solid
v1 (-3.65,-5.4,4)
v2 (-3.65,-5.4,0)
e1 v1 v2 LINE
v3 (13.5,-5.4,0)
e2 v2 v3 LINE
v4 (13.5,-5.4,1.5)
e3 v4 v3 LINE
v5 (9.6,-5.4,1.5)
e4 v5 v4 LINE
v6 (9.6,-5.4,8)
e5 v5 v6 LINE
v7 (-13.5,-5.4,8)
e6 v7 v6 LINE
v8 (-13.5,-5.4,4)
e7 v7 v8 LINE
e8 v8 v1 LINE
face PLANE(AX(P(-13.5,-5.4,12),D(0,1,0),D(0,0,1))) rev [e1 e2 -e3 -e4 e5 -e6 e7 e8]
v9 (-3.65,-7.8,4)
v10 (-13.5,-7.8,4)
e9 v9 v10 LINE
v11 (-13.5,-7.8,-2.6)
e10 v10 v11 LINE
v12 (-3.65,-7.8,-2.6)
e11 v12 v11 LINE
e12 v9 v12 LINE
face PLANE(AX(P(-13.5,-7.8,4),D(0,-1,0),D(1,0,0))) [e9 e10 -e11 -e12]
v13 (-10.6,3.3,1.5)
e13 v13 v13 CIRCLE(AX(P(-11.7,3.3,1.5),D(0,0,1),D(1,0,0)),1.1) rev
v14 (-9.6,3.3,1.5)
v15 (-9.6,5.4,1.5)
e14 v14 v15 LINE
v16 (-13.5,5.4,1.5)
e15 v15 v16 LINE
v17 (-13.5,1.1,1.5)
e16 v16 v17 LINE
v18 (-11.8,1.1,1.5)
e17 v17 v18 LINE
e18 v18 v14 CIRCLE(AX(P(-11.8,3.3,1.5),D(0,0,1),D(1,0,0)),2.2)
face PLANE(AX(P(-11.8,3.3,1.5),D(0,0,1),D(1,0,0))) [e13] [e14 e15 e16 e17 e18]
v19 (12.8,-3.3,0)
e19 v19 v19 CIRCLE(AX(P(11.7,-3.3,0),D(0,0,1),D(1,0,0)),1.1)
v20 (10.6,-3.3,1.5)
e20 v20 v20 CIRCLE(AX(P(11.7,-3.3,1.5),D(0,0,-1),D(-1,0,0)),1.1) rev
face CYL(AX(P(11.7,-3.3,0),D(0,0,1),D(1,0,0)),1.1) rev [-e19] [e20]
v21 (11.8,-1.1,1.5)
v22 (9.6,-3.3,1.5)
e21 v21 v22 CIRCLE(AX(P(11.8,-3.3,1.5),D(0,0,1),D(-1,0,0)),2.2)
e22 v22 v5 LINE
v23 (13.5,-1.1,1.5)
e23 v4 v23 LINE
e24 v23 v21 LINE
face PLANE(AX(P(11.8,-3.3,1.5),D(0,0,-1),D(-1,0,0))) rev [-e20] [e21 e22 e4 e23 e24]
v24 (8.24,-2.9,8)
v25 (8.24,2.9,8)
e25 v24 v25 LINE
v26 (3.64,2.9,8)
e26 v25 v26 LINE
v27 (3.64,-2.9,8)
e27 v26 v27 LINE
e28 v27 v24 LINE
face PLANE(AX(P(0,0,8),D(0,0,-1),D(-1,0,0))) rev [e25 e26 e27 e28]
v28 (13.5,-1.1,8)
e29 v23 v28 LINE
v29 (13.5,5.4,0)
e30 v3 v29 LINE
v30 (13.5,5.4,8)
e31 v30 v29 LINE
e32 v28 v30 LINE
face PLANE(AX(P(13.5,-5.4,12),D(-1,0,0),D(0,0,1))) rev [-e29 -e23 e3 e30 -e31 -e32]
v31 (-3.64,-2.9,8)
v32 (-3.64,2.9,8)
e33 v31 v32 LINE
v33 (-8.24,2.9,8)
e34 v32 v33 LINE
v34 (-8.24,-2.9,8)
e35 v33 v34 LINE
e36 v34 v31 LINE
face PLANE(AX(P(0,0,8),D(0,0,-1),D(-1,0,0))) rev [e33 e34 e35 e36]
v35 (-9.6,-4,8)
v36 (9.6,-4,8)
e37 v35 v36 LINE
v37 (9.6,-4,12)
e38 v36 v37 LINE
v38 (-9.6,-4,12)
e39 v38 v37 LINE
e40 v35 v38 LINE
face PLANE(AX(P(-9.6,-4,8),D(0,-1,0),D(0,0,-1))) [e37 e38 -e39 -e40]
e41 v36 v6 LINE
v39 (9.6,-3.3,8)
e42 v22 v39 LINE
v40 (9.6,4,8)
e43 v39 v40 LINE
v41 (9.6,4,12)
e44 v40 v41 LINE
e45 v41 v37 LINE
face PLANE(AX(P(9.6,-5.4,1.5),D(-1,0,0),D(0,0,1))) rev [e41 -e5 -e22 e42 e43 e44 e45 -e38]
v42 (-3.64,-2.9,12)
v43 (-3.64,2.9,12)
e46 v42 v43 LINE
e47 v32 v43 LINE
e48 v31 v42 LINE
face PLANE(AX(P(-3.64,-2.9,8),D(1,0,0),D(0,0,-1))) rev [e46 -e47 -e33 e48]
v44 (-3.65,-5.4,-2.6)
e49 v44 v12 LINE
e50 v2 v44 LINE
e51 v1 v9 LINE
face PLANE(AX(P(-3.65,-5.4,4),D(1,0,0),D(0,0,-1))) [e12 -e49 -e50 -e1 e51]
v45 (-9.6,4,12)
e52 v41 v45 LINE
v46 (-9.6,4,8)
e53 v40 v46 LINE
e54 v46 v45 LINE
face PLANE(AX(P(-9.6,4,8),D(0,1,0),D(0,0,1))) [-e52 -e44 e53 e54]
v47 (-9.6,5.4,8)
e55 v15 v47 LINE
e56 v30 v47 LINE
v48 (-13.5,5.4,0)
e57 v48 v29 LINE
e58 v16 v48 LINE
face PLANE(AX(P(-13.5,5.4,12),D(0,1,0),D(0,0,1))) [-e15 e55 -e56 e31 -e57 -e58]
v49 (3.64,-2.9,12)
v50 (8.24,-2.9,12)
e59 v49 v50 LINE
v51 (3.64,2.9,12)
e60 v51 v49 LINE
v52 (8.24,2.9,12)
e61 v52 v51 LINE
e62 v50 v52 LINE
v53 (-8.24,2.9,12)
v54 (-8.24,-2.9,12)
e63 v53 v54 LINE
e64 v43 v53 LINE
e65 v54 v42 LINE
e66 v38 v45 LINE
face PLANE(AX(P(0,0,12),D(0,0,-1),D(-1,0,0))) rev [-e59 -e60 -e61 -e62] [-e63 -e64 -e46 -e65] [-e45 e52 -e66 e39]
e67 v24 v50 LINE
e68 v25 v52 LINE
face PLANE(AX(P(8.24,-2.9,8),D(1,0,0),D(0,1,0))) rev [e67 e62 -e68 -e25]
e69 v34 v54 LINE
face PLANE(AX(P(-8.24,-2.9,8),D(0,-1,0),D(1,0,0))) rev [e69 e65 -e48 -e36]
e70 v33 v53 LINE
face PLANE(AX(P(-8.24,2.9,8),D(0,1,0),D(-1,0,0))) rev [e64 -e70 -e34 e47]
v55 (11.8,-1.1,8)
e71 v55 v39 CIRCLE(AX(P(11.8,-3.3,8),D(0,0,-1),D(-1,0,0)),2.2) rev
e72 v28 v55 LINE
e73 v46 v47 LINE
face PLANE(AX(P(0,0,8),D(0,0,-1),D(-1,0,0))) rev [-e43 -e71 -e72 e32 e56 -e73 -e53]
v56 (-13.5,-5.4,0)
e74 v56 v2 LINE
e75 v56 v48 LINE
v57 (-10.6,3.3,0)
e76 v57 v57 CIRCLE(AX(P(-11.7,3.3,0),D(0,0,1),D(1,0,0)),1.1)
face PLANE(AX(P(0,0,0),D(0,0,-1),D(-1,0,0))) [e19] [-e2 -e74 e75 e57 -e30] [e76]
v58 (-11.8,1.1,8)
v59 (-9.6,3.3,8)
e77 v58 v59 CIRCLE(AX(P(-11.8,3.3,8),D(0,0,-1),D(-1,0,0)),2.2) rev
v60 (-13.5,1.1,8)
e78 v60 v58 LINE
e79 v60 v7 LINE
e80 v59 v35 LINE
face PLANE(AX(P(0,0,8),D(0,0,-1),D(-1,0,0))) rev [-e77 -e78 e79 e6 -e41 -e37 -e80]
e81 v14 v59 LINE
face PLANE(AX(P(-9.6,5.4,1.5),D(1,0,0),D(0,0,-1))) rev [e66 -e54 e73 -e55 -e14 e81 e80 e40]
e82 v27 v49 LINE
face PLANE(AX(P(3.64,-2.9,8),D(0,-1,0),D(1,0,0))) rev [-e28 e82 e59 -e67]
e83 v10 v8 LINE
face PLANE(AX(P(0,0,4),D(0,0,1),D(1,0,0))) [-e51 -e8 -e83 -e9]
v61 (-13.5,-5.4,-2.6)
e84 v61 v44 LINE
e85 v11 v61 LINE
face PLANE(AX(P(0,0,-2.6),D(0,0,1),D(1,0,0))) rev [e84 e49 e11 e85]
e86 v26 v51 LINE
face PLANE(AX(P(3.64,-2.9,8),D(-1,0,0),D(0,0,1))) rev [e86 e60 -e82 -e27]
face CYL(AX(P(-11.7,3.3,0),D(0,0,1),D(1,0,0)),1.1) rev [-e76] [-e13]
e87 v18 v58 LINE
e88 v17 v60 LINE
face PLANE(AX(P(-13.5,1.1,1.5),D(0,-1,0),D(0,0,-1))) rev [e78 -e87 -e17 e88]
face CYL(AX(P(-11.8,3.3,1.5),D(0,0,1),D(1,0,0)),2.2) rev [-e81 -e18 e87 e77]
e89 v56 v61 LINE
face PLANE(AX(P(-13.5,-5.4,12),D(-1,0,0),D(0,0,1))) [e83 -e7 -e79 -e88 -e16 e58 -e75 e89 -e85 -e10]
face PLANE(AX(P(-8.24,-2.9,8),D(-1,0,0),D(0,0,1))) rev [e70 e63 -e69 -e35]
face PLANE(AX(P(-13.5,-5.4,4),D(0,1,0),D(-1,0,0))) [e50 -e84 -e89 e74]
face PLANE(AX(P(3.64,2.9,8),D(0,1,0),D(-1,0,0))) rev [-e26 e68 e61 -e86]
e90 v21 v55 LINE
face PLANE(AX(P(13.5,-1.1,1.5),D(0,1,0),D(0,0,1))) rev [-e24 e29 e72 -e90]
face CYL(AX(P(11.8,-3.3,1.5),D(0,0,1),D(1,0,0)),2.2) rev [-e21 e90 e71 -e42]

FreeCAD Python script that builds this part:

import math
import FreeCAD as App
import Part
import Sketcher


def add_polygon(sketch, points):
    """Adds a closed chain of lines whose ends are joined by coincident constraints."""
    first, n = sketch.GeometryCount, len(points)
    for a, b in zip(points, points[1:] + points[:1]):
        sketch.addGeometry(Part.LineSegment(App.Vector(*a, 0), App.Vector(*b, 0)), False)
    for i in range(n):
        sketch.addConstraint(Sketcher.Constraint("Coincident", first + i, 2, first + (i + 1) % n, 1))

doc = App.newDocument("Part")
body = doc.addObject("PartDesign::Body", "Body")

# Sketch on XY plane
sketch1 = body.newObject("Sketcher::SketchObject", "Sketch")
sketch1.AttachmentSupport = (doc.getObject("XY_Plane"), [""])
sketch1.MapMode = "FlatFace"
add_polygon(sketch1, [(-13.5, 5.4), (-13.5, -5.4), (13.5, -5.4), (13.5, 5.4)])  # lines 0-3
sketch1.addConstraint([
    Sketcher.Constraint("Vertical", 0),
    Sketcher.Constraint("Horizontal", 1),
    Sketcher.Constraint("Vertical", 2),
    Sketcher.Constraint("Horizontal", 3),
    Sketcher.Constraint("Symmetric", 0, 2, 2, 2, -1, 1),
    Sketcher.Constraint("DistanceX", 1, 1, 1, 2, 27.0),
    Sketcher.Constraint("DistanceY", 0, 2, 0, 1, 10.8),
])
pad1 = body.newObject("PartDesign::Pad", "Pad")
pad1.Profile = sketch1
pad1.Length = 12

# Sketch on XY plane
sketch2 = body.newObject("Sketcher::SketchObject", "Sketch001")
sketch2.AttachmentSupport = (doc.getObject("XY_Plane"), [""])
sketch2.MapMode = "FlatFace"
sketch2.AttachmentOffset = App.Placement(App.Vector(0, 0, 12), App.Rotation())
sketch2.addGeometry([
    Part.Circle(App.Vector(-11.7, 3.3, 0), App.Vector(0, 0, 1), 1.1),
    Part.Circle(App.Vector(11.7, -3.3, 0), App.Vector(0, 0, 1), 1.1),
], False)
sketch2.addConstraint([
    Sketcher.Constraint("Equal", 0, 1),
    Sketcher.Constraint("Symmetric", 0, 3, 1, 3, -1, 1),
    Sketcher.Constraint("Diameter", 0, 2.2),
    Sketcher.Constraint("DistanceX", 0, 3, -1, 1, 11.7),
    Sketcher.Constraint("DistanceY", -1, 1, 0, 3, 3.3),
])
pocket1 = body.newObject("PartDesign::Pocket", "Pocket")
pocket1.Profile = sketch2
pocket1.Type = "ThroughAll"

# Sketch on XY plane
sketch3 = body.newObject("Sketcher::SketchObject", "Sketch002")
sketch3.AttachmentSupport = (doc.getObject("XY_Plane"), [""])
sketch3.MapMode = "FlatFace"
sketch3.AttachmentOffset = App.Placement(App.Vector(0, 0, 12), App.Rotation())
sketch3.addGeometry([
    Part.LineSegment(App.Vector(9.6, -3.3, 0), App.Vector(9.6, -5.4, 0)),  # 0
    Part.LineSegment(App.Vector(9.6, -5.4, 0), App.Vector(13.5, -5.4, 0)),  # 1
    Part.LineSegment(App.Vector(13.5, -5.4, 0), App.Vector(13.5, -1.1, 0)),  # 2
    Part.LineSegment(App.Vector(13.5, -1.1, 0), App.Vector(11.8, -1.1, 0)),  # 3
    Part.ArcOfCircle(Part.Circle(App.Vector(11.8, -3.3, 0), App.Vector(0, 0, 1), 2.2), math.radians(90), math.radians(180)),  # 4
    Part.LineSegment(App.Vector(-9.6, 3.3, 0), App.Vector(-9.6, 5.4, 0)),  # 5
    Part.LineSegment(App.Vector(-9.6, 5.4, 0), App.Vector(-13.5, 5.4, 0)),  # 6
    Part.LineSegment(App.Vector(-13.5, 5.4, 0), App.Vector(-13.5, 1.1, 0)),  # 7
    Part.LineSegment(App.Vector(-13.5, 1.1, 0), App.Vector(-11.8, 1.1, 0)),  # 8
    Part.ArcOfCircle(Part.Circle(App.Vector(-11.8, 3.3, 0), App.Vector(0, 0, 1), 2.2), math.radians(-90), math.radians(0)),  # 9
], False)
sketch3.addConstraint([
    Sketcher.Constraint("Coincident", 0, 2, 1, 1),
    Sketcher.Constraint("Coincident", 1, 2, 2, 1),
    Sketcher.Constraint("Coincident", 2, 2, 3, 1),
    Sketcher.Constraint("Tangent", 3, 2, 4, 1),
    Sketcher.Constraint("Tangent", 4, 2, 0, 1),
    Sketcher.Constraint("Coincident", 5, 2, 6, 1),
    Sketcher.Constraint("Coincident", 6, 2, 7, 1),
    Sketcher.Constraint("Coincident", 7, 2, 8, 1),
    Sketcher.Constraint("Tangent", 8, 2, 9, 1),
    Sketcher.Constraint("Tangent", 9, 2, 5, 1),
    Sketcher.Constraint("Vertical", 0),
    Sketcher.Constraint("Horizontal", 1),
    Sketcher.Constraint("Vertical", 2),
    Sketcher.Constraint("Horizontal", 3),
    Sketcher.Constraint("Vertical", 5),
    Sketcher.Constraint("Horizontal", 6),
    Sketcher.Constraint("Vertical", 7),
    Sketcher.Constraint("Horizontal", 8),
    Sketcher.Constraint("Equal", 4, 9),
    Sketcher.Constraint("Symmetric", 4, 3, 9, 3, -1, 1),
    Sketcher.Constraint("Symmetric", 1, 2, 6, 2, -1, 1),
    Sketcher.Constraint("Radius", 4, 2.2),
    Sketcher.Constraint("DistanceX", 1, 1, 1, 2, 3.9),
    Sketcher.Constraint("DistanceY", 0, 2, 0, 1, 2.1),
    Sketcher.Constraint("DistanceX", -1, 1, 4, 3, 11.8),
    Sketcher.Constraint("DistanceY", 4, 3, -1, 1, 3.3),
])
pocket2 = body.newObject("PartDesign::Pocket", "Pocket001")
pocket2.Profile = sketch3
pocket2.Length = 10.5

# Sketch on XY plane
sketch4 = body.newObject("Sketcher::SketchObject", "Sketch003")
sketch4.AttachmentSupport = (doc.getObject("XY_Plane"), [""])
sketch4.MapMode = "FlatFace"
sketch4.AttachmentOffset = App.Placement(App.Vector(0, 0, 12), App.Rotation())
add_polygon(sketch4, [(-13.5, 5.4), (-13.5, -5.4), (13.5, -5.4), (13.5, 5.4)])  # lines 0-3
add_polygon(sketch4, [(9.6, -4), (-9.6, -4), (-9.6, 4), (9.6, 4)])  # lines 4-7
sketch4.addConstraint([
    Sketcher.Constraint("Vertical", 0),
    Sketcher.Constraint("Horizontal", 1),
    Sketcher.Constraint("Vertical", 2),
    Sketcher.Constraint("Horizontal", 3),
    Sketcher.Constraint("Horizontal", 4),
    Sketcher.Constraint("Vertical", 5),
    Sketcher.Constraint("Horizontal", 6),
    Sketcher.Constraint("Vertical", 7),
    Sketcher.Constraint("Symmetric", 0, 2, 2, 2, -1, 1),
    Sketcher.Constraint("Symmetric", 4, 2, 6, 2, -1, 1),
    Sketcher.Constraint("DistanceX", 1, 1, 1, 2, 27.0),
    Sketcher.Constraint("DistanceY", 5, 1, 5, 2, 8.0),
    Sketcher.Constraint("DistanceX", 4, 2, 4, 1, 19.2),
    Sketcher.Constraint("DistanceY", 0, 2, 0, 1, 10.8),
])
pocket3 = body.newObject("PartDesign::Pocket", "Pocket002")
pocket3.Profile = sketch4
pocket3.Length = 4

# Sketch on XY plane
sketch5 = body.newObject("Sketcher::SketchObject", "Sketch004")
sketch5.AttachmentSupport = (doc.getObject("XY_Plane"), [""])
sketch5.MapMode = "FlatFace"
sketch5.AttachmentOffset = App.Placement(App.Vector(0, 0, 12), App.Rotation())
add_polygon(sketch5, [(-8.24, 2.9), (-8.24, -2.9), (-3.64, -2.9), (-3.64, 2.9)])  # lines 0-3
add_polygon(sketch5, [(3.64, 2.9), (3.64, -2.9), (8.24, -2.9), (8.24, 2.9)])  # lines 4-7
sketch5.addConstraint([
    Sketcher.Constraint("Vertical", 0),
    Sketcher.Constraint("Horizontal", 1),
    Sketcher.Constraint("Vertical", 2),
    Sketcher.Constraint("Horizontal", 3),
    Sketcher.Constraint("Vertical", 4),
    Sketcher.Constraint("Horizontal", 5),
    Sketcher.Constraint("Vertical", 6),
    Sketcher.Constraint("Horizontal", 7),
    Sketcher.Constraint("Symmetric", 2, 2, 4, 2, -1, 1),
    Sketcher.Constraint("Symmetric", 0, 2, 6, 2, -1, 1),
    Sketcher.Constraint("Horizontal", 1, 2, 4, 2),
    Sketcher.Constraint("DistanceX", 1, 1, 1, 2, 4.6),
    Sketcher.Constraint("DistanceY", 0, 2, 0, 1, 5.8),
    Sketcher.Constraint("DistanceX", 0, 2, -1, 1, 8.24),
])
pocket4 = body.newObject("PartDesign::Pocket", "Pocket003")
pocket4.Profile = sketch5
pocket4.Length = 4

# Sketch on XY plane
sketch6 = body.newObject("Sketcher::SketchObject", "Sketch005")
sketch6.AttachmentSupport = (doc.getObject("XY_Plane"), [""])
sketch6.MapMode = "FlatFace"
add_polygon(sketch6, [(-3.65, -5.4), (-3.65, -7.8), (-13.5, -7.8), (-13.5, -5.4)])  # lines 0-3
sketch6.addConstraint([
    Sketcher.Constraint("Vertical", 0),
    Sketcher.Constraint("Horizontal", 1),
    Sketcher.Constraint("Vertical", 2),
    Sketcher.Constraint("Horizontal", 3),
    Sketcher.Constraint("DistanceY", 0, 2, 0, 1, 2.4),
    Sketcher.Constraint("DistanceX", 1, 2, 1, 1, 9.85),
    Sketcher.Constraint("DistanceY", 0, 2, -1, 1, 7.8),
    Sketcher.Constraint("DistanceX", 1, 2, -1, 1, 13.5),
])
pad2 = body.newObject("PartDesign::Pad", "Pad001")
pad2.Profile = sketch6
pad2.Type = "TwoLengths"
pad2.Length = 2.6
pad2.Length2 = 4
pad2.Reversed = True

doc.recompute()
